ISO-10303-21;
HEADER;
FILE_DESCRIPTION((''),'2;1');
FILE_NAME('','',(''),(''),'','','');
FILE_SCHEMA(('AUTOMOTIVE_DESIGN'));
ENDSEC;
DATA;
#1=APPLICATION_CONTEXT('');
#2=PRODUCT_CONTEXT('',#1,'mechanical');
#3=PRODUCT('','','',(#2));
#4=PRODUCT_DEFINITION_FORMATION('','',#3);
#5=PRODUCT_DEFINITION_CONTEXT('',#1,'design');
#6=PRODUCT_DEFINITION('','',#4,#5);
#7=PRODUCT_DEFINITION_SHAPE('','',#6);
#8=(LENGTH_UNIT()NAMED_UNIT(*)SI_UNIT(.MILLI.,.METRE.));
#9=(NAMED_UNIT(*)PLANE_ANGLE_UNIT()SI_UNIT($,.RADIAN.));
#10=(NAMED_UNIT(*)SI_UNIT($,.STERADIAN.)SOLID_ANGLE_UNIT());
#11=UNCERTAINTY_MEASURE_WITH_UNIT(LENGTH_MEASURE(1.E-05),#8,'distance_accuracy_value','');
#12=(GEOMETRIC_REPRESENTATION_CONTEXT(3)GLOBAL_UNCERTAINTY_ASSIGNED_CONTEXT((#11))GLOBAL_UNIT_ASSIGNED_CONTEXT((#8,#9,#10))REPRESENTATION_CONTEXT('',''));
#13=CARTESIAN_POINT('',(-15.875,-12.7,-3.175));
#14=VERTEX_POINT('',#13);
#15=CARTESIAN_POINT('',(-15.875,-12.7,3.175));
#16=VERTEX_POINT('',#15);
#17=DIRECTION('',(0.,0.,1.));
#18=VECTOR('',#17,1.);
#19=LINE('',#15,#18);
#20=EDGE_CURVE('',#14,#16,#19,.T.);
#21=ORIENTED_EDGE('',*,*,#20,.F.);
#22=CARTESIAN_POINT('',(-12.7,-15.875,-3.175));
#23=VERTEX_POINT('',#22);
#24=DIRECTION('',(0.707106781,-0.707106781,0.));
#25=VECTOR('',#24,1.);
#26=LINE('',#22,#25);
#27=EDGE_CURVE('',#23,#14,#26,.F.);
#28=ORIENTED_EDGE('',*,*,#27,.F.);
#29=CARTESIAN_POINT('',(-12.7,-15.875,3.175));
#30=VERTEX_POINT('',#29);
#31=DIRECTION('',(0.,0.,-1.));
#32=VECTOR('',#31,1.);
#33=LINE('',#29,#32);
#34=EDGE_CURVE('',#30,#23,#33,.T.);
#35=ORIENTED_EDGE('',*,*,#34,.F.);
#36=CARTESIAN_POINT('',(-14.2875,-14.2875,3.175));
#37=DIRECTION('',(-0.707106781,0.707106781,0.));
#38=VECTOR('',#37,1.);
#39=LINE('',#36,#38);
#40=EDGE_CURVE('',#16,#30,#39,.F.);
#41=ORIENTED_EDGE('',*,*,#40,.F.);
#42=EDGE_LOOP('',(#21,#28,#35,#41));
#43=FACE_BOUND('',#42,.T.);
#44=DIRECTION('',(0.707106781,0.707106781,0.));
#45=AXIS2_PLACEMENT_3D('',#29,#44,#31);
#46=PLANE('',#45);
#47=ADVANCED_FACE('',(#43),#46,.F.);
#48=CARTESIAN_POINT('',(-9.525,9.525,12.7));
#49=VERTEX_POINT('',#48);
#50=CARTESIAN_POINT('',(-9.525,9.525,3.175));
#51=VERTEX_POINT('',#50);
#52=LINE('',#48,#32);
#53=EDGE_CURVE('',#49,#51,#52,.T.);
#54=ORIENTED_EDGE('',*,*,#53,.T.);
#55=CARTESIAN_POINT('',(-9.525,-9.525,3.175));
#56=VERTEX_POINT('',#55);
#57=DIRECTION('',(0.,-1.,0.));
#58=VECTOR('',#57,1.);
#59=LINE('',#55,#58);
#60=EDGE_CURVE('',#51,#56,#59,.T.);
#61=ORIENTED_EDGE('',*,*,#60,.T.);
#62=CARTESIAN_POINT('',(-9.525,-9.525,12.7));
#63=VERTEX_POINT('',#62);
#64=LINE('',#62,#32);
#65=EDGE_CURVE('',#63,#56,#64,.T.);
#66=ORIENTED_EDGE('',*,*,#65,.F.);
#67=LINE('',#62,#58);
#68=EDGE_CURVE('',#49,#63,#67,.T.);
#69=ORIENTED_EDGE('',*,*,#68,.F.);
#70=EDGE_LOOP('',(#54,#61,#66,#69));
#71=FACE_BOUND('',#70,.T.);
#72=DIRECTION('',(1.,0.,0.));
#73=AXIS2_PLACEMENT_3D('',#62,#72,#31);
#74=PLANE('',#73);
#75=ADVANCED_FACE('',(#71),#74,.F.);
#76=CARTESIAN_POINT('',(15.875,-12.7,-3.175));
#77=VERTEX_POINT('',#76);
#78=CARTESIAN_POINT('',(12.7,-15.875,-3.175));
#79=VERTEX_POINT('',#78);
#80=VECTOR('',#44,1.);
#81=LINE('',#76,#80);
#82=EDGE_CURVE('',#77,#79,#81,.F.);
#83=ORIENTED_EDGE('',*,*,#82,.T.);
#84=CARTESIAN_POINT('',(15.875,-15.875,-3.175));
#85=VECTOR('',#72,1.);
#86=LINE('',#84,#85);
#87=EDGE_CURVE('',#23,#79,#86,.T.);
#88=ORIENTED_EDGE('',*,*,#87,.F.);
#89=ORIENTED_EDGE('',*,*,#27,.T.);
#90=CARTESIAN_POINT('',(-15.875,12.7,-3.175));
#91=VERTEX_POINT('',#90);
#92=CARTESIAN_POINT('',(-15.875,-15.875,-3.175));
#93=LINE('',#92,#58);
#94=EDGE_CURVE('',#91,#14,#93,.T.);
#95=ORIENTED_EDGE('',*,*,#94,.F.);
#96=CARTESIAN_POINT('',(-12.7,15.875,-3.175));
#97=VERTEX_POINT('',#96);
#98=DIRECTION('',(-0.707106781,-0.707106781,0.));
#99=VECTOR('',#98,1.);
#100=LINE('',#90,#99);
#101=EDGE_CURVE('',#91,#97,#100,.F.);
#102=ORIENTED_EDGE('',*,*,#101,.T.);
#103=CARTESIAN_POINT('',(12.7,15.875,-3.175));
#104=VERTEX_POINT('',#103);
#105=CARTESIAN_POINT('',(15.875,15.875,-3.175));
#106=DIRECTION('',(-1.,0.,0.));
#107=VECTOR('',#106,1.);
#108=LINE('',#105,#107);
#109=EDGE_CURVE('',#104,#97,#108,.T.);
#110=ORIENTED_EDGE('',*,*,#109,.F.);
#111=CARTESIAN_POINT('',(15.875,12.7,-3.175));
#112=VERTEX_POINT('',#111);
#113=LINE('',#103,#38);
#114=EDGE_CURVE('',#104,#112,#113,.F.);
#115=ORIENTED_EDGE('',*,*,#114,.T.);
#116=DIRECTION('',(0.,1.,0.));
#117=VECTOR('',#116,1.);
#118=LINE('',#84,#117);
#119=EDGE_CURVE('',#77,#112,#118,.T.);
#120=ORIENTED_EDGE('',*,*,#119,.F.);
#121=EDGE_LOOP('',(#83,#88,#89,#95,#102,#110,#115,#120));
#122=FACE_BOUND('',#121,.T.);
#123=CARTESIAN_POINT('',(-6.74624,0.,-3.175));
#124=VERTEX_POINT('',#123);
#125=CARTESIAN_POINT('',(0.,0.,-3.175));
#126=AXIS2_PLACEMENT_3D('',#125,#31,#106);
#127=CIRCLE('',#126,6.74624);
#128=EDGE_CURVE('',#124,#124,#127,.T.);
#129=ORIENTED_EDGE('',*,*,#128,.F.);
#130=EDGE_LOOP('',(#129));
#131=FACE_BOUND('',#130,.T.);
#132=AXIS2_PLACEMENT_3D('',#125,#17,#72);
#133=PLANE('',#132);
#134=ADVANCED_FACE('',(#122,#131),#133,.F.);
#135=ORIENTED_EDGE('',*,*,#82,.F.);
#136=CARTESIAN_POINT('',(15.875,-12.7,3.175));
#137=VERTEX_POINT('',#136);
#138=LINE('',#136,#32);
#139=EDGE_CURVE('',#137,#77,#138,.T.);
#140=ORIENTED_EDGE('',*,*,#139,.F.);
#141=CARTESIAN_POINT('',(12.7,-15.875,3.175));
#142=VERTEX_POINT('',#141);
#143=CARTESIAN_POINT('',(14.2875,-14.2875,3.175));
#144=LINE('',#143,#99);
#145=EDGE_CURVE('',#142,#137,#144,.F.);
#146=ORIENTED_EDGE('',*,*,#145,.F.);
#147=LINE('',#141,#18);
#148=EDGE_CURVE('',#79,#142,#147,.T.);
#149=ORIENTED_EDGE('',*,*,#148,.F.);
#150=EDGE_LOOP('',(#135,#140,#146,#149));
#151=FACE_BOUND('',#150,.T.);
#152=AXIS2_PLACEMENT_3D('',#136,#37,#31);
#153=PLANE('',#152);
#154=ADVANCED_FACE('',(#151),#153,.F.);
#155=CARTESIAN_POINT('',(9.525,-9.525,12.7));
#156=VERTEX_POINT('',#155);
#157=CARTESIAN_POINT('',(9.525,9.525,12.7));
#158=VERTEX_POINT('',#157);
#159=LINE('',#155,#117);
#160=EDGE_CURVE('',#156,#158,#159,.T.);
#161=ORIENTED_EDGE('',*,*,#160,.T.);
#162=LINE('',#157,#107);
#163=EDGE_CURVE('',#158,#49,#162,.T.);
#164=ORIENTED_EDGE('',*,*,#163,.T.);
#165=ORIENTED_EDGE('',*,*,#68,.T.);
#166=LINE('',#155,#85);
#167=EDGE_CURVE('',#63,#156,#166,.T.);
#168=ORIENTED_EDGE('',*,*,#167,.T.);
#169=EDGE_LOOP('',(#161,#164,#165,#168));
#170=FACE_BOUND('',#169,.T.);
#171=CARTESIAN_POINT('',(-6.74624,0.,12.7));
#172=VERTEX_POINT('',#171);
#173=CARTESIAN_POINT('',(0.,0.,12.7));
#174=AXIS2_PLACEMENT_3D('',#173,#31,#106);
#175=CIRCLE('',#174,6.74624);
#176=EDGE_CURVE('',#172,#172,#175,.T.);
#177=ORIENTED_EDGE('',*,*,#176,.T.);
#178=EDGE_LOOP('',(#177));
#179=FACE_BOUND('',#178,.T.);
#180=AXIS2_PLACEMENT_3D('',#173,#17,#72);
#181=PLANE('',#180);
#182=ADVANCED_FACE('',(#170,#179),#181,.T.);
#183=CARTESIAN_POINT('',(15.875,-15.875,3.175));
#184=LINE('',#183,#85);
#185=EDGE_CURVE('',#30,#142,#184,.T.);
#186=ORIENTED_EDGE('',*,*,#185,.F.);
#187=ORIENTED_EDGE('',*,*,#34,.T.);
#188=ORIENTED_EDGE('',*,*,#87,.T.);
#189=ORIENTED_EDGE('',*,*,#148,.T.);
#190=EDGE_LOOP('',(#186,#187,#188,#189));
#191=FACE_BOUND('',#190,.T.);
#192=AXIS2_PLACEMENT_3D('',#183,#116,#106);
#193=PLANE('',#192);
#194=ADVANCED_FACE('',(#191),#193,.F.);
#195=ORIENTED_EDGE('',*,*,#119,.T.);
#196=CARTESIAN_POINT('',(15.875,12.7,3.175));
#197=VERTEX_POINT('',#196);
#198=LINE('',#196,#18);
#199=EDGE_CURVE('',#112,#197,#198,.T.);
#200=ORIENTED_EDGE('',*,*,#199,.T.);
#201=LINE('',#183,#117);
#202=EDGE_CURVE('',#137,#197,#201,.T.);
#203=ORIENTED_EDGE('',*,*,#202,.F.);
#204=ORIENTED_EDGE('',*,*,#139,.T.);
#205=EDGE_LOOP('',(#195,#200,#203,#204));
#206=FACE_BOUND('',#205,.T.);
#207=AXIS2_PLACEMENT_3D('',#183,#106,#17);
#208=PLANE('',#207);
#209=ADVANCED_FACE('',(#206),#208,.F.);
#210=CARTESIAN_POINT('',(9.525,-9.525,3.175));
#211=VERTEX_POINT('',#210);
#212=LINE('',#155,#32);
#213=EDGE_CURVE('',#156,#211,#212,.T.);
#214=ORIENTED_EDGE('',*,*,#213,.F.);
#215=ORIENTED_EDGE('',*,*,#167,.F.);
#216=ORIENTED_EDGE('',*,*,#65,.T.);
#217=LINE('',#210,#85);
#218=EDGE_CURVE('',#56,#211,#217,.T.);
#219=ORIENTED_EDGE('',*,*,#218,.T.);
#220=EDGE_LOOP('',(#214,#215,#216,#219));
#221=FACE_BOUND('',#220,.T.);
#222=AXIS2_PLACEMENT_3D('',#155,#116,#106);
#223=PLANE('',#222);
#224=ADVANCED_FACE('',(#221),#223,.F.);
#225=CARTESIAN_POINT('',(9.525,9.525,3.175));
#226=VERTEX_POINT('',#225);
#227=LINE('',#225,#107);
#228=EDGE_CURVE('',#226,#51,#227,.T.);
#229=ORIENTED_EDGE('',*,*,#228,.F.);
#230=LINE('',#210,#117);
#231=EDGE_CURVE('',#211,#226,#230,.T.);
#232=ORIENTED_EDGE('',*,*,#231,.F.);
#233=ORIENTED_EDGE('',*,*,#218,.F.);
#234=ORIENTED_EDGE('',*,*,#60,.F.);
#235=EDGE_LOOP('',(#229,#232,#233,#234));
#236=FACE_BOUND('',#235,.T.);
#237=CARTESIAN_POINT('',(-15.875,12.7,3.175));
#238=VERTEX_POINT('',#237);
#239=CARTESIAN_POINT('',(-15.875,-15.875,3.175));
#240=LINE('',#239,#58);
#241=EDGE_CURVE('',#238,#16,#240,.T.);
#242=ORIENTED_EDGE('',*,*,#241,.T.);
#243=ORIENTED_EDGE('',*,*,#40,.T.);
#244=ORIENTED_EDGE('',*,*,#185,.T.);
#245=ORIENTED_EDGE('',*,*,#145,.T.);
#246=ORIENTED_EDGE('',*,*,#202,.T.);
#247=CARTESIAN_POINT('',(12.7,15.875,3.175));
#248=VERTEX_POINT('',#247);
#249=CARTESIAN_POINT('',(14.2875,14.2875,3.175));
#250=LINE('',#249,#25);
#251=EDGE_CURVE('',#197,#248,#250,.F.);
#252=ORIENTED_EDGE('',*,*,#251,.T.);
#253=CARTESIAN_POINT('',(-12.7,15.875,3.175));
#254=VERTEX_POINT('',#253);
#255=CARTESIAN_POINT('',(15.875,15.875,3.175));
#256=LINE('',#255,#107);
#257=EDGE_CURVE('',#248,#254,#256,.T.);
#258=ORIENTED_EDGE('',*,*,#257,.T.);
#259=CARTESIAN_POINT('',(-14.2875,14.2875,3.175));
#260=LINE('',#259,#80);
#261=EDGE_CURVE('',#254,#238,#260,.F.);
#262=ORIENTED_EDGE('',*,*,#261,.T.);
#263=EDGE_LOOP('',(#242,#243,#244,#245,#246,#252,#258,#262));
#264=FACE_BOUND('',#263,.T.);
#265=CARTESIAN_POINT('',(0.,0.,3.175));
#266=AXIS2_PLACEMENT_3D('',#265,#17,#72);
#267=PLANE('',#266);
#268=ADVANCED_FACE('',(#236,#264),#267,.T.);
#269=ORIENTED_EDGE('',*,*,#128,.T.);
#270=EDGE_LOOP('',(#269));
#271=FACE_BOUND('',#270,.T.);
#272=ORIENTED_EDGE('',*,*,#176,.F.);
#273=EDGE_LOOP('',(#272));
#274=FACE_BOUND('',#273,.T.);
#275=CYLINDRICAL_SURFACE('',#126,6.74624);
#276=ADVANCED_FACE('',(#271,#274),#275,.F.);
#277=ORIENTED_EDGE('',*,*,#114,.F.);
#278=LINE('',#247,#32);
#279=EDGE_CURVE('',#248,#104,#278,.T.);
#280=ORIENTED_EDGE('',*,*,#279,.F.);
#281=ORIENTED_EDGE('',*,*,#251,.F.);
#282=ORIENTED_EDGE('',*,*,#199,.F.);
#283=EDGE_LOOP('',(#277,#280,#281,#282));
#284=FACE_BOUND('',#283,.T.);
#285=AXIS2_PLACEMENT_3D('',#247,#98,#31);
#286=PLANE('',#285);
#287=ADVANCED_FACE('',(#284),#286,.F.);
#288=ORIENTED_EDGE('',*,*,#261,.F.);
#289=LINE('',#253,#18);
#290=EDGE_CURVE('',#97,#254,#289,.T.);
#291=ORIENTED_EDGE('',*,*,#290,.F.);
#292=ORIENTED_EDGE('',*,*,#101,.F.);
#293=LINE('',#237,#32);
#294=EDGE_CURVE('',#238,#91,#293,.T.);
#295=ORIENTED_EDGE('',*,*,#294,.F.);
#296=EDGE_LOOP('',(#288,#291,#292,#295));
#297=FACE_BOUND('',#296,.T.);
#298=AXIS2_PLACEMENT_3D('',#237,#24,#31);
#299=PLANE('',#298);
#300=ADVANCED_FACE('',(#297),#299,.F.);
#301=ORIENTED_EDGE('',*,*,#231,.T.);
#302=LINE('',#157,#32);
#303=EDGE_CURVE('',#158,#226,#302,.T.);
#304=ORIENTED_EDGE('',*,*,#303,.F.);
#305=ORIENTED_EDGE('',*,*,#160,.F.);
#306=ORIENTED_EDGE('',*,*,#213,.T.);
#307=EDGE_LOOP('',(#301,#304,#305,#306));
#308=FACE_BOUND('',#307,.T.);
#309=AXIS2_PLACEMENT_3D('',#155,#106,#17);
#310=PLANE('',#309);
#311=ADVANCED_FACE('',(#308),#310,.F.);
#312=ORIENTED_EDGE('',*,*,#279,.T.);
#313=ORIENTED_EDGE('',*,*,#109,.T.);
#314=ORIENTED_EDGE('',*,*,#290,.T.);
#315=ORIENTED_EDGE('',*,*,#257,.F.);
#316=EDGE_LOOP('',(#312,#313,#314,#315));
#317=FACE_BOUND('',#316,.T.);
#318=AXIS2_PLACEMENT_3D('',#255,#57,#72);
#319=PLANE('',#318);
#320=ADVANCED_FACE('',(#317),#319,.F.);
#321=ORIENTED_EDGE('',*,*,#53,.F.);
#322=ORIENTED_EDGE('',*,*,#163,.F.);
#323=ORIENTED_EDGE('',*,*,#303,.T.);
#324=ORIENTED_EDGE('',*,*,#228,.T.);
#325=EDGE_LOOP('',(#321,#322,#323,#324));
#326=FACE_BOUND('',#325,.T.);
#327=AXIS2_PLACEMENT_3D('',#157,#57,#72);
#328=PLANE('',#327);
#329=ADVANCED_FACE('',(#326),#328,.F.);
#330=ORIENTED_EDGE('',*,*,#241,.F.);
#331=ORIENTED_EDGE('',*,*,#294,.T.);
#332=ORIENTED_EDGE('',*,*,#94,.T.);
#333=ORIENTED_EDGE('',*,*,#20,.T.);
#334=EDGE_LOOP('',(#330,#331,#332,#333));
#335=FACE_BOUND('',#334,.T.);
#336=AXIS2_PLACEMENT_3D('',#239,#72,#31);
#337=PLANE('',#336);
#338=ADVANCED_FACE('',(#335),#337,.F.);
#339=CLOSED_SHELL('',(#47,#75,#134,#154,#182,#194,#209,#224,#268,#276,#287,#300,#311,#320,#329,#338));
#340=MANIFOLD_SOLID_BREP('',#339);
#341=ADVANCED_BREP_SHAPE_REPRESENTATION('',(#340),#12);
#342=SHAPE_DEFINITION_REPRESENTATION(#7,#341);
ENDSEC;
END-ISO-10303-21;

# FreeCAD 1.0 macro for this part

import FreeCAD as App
import Part
import Sketcher
Q = App.Units.Quantity


def edges_at(feature, points):
    """Names of the edges that pass closest to the given points."""
    edges = feature.Shape.Edges
    near = lambda p: min(range(len(edges)), key=lambda i: edges[i].distToShape(Part.Vertex(*p))[0])
    return sorted({f"Edge{near(p) + 1}" for p in points})

doc = App.newDocument("Part")
body = doc.addObject("PartDesign::Body", "Body")

# Sketch on XY plane
sketch1 = body.newObject("Sketcher::SketchObject", "Sketch")
sketch1.AttachmentSupport = (doc.getObject("XY_Plane"), [""])
sketch1.MapMode = "FlatFace"
sketch1.addGeometry([
    Part.LineSegment(App.Vector(-15.875, 15.875, 0), App.Vector(-15.875, -15.875, 0)),
    Part.LineSegment(App.Vector(-15.875, -15.875, 0), App.Vector(15.875, -15.875, 0)),
    Part.LineSegment(App.Vector(15.875, -15.875, 0), App.Vector(15.875, 15.875, 0)),
    Part.LineSegment(App.Vector(15.875, 15.875, 0), App.Vector(-15.875, 15.875, 0)),
], False)
sketch1.addConstraint([
    Sketcher.Constraint("Coincident", 0, 2, 1, 1),
    Sketcher.Constraint("Coincident", 1, 2, 2, 1),
    Sketcher.Constraint("Coincident", 2, 2, 3, 1),
    Sketcher.Constraint("Coincident", 3, 2, 0, 1),
    Sketcher.Constraint("Vertical", 0),
    Sketcher.Constraint("Horizontal", 1),
    Sketcher.Constraint("Vertical", 2),
    Sketcher.Constraint("Horizontal", 3),
    Sketcher.Constraint("Symmetric", 0, 2, 2, 2, -1, 1),
    Sketcher.Constraint("Equal", 3, 0),
    Sketcher.Constraint("DistanceX", 1, 1, 1, 2, Q("1.25 in")),
])
pad1 = body.newObject("PartDesign::Pad", "Pad")
pad1.Profile = sketch1
pad1.Length = Q("0.25 in")
pad1.Midplane = True

# Sketch on XY plane
sketch2 = body.newObject("Sketcher::SketchObject", "Sketch001")
sketch2.AttachmentSupport = (doc.getObject("XY_Plane"), [""])
sketch2.MapMode = "FlatFace"
sketch2.AttachmentOffset = App.Placement(App.Vector(0, 0, 0.125 * 25.4), App.Rotation())
sketch2.addGeometry([
    Part.LineSegment(App.Vector(-9.525, 9.525, 0), App.Vector(-9.525, -9.525, 0)),
    Part.LineSegment(App.Vector(-9.525, -9.525, 0), App.Vector(9.525, -9.525, 0)),
    Part.LineSegment(App.Vector(9.525, -9.525, 0), App.Vector(9.525, 9.525, 0)),
    Part.LineSegment(App.Vector(9.525, 9.525, 0), App.Vector(-9.525, 9.525, 0)),
], False)
sketch2.addConstraint([
    Sketcher.Constraint("Coincident", 0, 2, 1, 1),
    Sketcher.Constraint("Coincident", 1, 2, 2, 1),
    Sketcher.Constraint("Coincident", 2, 2, 3, 1),
    Sketcher.Constraint("Coincident", 3, 2, 0, 1),
    Sketcher.Constraint("Vertical", 0),
    Sketcher.Constraint("Horizontal", 1),
    Sketcher.Constraint("Vertical", 2),
    Sketcher.Constraint("Horizontal", 3),
    Sketcher.Constraint("Symmetric", 0, 2, 2, 2, -1, 1),
    Sketcher.Constraint("Equal", 3, 0),
    Sketcher.Constraint("DistanceX", 1, 1, 1, 2, Q("0.75 in")),
])
pad2 = body.newObject("PartDesign::Pad", "Pad001")
pad2.Profile = sketch2
pad2.Length = Q("0.375 in")

# Sketch on XY plane
sketch3 = body.newObject("Sketcher::SketchObject", "Sketch002")
sketch3.AttachmentSupport = (doc.getObject("XY_Plane"), [""])
sketch3.MapMode = "FlatFace"
sketch3.AttachmentOffset = App.Placement(App.Vector(0, 0, -0.125 * 25.4), App.Rotation())
sketch3.addGeometry(Part.Circle(App.Vector(0, 0, 0), App.Vector(0, 0, 1), 6.74624), False)
sketch3.addConstraint([
    Sketcher.Constraint("Coincident", 0, 3, -1, 1),
    Sketcher.Constraint("Diameter", 0, Q("0.5312 in")),
])
doc.recompute()
hole = body.newObject("PartDesign::Hole", "Hole")
hole.Profile = sketch3
hole.ThreadType = "None"
hole.Diameter = Q("0.5312 in")
hole.DepthType = "ThroughAll"
hole.Reversed = True
doc.recompute()

chamfer = body.newObject("PartDesign::Chamfer", "Chamfer")
chamfer.Base = (hole, edges_at(hole, [
    (-15.875, 15.875, 0),
    (15.875, 15.875, 0),
    (15.875, -15.875, 0),
    (-15.875, -15.875, 0),
]))
chamfer.Size = Q("0.125 in")

doc.recompute()
